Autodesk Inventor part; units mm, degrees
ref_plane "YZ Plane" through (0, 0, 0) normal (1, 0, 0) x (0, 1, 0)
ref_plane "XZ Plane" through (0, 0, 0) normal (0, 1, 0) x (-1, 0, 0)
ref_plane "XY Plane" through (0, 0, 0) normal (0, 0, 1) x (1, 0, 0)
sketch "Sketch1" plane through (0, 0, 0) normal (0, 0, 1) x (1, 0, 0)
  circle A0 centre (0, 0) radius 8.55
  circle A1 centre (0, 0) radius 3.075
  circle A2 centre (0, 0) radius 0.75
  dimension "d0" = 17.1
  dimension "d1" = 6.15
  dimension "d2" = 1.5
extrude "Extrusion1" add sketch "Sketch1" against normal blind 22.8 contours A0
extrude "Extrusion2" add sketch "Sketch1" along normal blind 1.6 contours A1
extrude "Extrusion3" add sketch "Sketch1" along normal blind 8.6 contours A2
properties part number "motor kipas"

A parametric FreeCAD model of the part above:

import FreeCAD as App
import Part
import Sketcher
from FreeCAD import Vector
Q = App.Units.Quantity

doc = App.newDocument("Part")
params = doc.addObject("Spreadsheet::Sheet", "Params")
for row, (alias, value) in enumerate([
    ("sketch1_diameter", "17.1 mm"),
    ("sketch1_diameter2", "6.15 mm"),
    ("pad1_length", "22.8 mm"),
    ("sketch2_diameter", "1.5 mm"),
    ("sketch2_diameter2", "6.15 mm"),
    ("pad2_length", "1.6 mm"),
    ("sketch3_diameter", "1.5 mm"),
    ("pad3_length", "8.6 mm"),
], start=1):
    params.set(f"A{row}", alias)
    params.set(f"B{row}", "=" + value)
    params.setAlias(f"B{row}", alias)

body = doc.addObject("PartDesign::Body", "Body")
body.AllowCompound = True

# Sketch on XY plane
sketch1 = doc.addObject("Sketcher::SketchObject", "Sketch")
body.addObject(sketch1)
sketch1.AttachmentSupport = (doc.XY_Plane, [""])
sketch1.MapMode = "FlatFace"
sketch1.addGeometry([
    Part.Circle(Vector(0, 0, 0), Vector(0, 0, 1), 8.6),
    Part.Circle(Vector(0, 0, 0), Vector(0, 0, 1), 3.1),
], False)
sketch1.addConstraint([
    Sketcher.Constraint("Coincident", 0, 3, -1, 1),
    Sketcher.Constraint("Coincident", 1, 3, -1, 1),
    Sketcher.Constraint("Diameter", 0, Q("17.1 mm")),
    Sketcher.Constraint("Diameter", 1, Q("6.15 mm")),
])
sketch1.setExpression("Constraints[2]", "Params.sketch1_diameter")
sketch1.setExpression("Constraints[3]", "Params.sketch1_diameter2")
pad1 = doc.addObject("PartDesign::Pad", "Pad")
body.addObject(pad1)
pad1.Profile = sketch1
pad1.setExpression("Length", "Params.pad1_length")
pad1.Reversed = True

# Sketch on XY plane
sketch2 = doc.addObject("Sketcher::SketchObject", "Sketch001")
body.addObject(sketch2)
sketch2.AttachmentSupport = (doc.XY_Plane, [""])
sketch2.MapMode = "FlatFace"
sketch2.addGeometry([
    Part.Circle(Vector(0, 0, 0), Vector(0, 0, 1), 3.1),
    Part.Circle(Vector(0, 0, 0), Vector(0, 0, 1), 0.8),
], False)
sketch2.addConstraint([
    Sketcher.Constraint("Coincident", 0, 3, -1, 1),
    Sketcher.Constraint("Coincident", 1, 3, -1, 1),
    Sketcher.Constraint("Diameter", 1, Q("1.5 mm")),
    Sketcher.Constraint("Diameter", 0, Q("6.15 mm")),
])
sketch2.setExpression("Constraints[2]", "Params.sketch2_diameter")
sketch2.setExpression("Constraints[3]", "Params.sketch2_diameter2")
pad2 = doc.addObject("PartDesign::Pad", "Pad001")
body.addObject(pad2)
pad2.Profile = sketch2
pad2.setExpression("Length", "Params.pad2_length")

# Sketch on XY plane
sketch3 = doc.addObject("Sketcher::SketchObject", "Sketch002")
body.addObject(sketch3)
sketch3.AttachmentSupport = (doc.XY_Plane, [""])
sketch3.MapMode = "FlatFace"
sketch3.addGeometry(Part.Circle(Vector(0, 0, 0), Vector(0, 0, 1), 0.8), False)
sketch3.addConstraint([
    Sketcher.Constraint("Coincident", 0, 3, -1, 1),
    Sketcher.Constraint("Diameter", 0, Q("1.5 mm")),
])
sketch3.setExpression("Constraints[1]", "Params.sketch3_diameter")
pad3 = doc.addObject("PartDesign::Pad", "Pad002")
body.addObject(pad3)
pad3.Profile = sketch3
pad3.setExpression("Length", "Params.pad3_length")

doc.recompute()
